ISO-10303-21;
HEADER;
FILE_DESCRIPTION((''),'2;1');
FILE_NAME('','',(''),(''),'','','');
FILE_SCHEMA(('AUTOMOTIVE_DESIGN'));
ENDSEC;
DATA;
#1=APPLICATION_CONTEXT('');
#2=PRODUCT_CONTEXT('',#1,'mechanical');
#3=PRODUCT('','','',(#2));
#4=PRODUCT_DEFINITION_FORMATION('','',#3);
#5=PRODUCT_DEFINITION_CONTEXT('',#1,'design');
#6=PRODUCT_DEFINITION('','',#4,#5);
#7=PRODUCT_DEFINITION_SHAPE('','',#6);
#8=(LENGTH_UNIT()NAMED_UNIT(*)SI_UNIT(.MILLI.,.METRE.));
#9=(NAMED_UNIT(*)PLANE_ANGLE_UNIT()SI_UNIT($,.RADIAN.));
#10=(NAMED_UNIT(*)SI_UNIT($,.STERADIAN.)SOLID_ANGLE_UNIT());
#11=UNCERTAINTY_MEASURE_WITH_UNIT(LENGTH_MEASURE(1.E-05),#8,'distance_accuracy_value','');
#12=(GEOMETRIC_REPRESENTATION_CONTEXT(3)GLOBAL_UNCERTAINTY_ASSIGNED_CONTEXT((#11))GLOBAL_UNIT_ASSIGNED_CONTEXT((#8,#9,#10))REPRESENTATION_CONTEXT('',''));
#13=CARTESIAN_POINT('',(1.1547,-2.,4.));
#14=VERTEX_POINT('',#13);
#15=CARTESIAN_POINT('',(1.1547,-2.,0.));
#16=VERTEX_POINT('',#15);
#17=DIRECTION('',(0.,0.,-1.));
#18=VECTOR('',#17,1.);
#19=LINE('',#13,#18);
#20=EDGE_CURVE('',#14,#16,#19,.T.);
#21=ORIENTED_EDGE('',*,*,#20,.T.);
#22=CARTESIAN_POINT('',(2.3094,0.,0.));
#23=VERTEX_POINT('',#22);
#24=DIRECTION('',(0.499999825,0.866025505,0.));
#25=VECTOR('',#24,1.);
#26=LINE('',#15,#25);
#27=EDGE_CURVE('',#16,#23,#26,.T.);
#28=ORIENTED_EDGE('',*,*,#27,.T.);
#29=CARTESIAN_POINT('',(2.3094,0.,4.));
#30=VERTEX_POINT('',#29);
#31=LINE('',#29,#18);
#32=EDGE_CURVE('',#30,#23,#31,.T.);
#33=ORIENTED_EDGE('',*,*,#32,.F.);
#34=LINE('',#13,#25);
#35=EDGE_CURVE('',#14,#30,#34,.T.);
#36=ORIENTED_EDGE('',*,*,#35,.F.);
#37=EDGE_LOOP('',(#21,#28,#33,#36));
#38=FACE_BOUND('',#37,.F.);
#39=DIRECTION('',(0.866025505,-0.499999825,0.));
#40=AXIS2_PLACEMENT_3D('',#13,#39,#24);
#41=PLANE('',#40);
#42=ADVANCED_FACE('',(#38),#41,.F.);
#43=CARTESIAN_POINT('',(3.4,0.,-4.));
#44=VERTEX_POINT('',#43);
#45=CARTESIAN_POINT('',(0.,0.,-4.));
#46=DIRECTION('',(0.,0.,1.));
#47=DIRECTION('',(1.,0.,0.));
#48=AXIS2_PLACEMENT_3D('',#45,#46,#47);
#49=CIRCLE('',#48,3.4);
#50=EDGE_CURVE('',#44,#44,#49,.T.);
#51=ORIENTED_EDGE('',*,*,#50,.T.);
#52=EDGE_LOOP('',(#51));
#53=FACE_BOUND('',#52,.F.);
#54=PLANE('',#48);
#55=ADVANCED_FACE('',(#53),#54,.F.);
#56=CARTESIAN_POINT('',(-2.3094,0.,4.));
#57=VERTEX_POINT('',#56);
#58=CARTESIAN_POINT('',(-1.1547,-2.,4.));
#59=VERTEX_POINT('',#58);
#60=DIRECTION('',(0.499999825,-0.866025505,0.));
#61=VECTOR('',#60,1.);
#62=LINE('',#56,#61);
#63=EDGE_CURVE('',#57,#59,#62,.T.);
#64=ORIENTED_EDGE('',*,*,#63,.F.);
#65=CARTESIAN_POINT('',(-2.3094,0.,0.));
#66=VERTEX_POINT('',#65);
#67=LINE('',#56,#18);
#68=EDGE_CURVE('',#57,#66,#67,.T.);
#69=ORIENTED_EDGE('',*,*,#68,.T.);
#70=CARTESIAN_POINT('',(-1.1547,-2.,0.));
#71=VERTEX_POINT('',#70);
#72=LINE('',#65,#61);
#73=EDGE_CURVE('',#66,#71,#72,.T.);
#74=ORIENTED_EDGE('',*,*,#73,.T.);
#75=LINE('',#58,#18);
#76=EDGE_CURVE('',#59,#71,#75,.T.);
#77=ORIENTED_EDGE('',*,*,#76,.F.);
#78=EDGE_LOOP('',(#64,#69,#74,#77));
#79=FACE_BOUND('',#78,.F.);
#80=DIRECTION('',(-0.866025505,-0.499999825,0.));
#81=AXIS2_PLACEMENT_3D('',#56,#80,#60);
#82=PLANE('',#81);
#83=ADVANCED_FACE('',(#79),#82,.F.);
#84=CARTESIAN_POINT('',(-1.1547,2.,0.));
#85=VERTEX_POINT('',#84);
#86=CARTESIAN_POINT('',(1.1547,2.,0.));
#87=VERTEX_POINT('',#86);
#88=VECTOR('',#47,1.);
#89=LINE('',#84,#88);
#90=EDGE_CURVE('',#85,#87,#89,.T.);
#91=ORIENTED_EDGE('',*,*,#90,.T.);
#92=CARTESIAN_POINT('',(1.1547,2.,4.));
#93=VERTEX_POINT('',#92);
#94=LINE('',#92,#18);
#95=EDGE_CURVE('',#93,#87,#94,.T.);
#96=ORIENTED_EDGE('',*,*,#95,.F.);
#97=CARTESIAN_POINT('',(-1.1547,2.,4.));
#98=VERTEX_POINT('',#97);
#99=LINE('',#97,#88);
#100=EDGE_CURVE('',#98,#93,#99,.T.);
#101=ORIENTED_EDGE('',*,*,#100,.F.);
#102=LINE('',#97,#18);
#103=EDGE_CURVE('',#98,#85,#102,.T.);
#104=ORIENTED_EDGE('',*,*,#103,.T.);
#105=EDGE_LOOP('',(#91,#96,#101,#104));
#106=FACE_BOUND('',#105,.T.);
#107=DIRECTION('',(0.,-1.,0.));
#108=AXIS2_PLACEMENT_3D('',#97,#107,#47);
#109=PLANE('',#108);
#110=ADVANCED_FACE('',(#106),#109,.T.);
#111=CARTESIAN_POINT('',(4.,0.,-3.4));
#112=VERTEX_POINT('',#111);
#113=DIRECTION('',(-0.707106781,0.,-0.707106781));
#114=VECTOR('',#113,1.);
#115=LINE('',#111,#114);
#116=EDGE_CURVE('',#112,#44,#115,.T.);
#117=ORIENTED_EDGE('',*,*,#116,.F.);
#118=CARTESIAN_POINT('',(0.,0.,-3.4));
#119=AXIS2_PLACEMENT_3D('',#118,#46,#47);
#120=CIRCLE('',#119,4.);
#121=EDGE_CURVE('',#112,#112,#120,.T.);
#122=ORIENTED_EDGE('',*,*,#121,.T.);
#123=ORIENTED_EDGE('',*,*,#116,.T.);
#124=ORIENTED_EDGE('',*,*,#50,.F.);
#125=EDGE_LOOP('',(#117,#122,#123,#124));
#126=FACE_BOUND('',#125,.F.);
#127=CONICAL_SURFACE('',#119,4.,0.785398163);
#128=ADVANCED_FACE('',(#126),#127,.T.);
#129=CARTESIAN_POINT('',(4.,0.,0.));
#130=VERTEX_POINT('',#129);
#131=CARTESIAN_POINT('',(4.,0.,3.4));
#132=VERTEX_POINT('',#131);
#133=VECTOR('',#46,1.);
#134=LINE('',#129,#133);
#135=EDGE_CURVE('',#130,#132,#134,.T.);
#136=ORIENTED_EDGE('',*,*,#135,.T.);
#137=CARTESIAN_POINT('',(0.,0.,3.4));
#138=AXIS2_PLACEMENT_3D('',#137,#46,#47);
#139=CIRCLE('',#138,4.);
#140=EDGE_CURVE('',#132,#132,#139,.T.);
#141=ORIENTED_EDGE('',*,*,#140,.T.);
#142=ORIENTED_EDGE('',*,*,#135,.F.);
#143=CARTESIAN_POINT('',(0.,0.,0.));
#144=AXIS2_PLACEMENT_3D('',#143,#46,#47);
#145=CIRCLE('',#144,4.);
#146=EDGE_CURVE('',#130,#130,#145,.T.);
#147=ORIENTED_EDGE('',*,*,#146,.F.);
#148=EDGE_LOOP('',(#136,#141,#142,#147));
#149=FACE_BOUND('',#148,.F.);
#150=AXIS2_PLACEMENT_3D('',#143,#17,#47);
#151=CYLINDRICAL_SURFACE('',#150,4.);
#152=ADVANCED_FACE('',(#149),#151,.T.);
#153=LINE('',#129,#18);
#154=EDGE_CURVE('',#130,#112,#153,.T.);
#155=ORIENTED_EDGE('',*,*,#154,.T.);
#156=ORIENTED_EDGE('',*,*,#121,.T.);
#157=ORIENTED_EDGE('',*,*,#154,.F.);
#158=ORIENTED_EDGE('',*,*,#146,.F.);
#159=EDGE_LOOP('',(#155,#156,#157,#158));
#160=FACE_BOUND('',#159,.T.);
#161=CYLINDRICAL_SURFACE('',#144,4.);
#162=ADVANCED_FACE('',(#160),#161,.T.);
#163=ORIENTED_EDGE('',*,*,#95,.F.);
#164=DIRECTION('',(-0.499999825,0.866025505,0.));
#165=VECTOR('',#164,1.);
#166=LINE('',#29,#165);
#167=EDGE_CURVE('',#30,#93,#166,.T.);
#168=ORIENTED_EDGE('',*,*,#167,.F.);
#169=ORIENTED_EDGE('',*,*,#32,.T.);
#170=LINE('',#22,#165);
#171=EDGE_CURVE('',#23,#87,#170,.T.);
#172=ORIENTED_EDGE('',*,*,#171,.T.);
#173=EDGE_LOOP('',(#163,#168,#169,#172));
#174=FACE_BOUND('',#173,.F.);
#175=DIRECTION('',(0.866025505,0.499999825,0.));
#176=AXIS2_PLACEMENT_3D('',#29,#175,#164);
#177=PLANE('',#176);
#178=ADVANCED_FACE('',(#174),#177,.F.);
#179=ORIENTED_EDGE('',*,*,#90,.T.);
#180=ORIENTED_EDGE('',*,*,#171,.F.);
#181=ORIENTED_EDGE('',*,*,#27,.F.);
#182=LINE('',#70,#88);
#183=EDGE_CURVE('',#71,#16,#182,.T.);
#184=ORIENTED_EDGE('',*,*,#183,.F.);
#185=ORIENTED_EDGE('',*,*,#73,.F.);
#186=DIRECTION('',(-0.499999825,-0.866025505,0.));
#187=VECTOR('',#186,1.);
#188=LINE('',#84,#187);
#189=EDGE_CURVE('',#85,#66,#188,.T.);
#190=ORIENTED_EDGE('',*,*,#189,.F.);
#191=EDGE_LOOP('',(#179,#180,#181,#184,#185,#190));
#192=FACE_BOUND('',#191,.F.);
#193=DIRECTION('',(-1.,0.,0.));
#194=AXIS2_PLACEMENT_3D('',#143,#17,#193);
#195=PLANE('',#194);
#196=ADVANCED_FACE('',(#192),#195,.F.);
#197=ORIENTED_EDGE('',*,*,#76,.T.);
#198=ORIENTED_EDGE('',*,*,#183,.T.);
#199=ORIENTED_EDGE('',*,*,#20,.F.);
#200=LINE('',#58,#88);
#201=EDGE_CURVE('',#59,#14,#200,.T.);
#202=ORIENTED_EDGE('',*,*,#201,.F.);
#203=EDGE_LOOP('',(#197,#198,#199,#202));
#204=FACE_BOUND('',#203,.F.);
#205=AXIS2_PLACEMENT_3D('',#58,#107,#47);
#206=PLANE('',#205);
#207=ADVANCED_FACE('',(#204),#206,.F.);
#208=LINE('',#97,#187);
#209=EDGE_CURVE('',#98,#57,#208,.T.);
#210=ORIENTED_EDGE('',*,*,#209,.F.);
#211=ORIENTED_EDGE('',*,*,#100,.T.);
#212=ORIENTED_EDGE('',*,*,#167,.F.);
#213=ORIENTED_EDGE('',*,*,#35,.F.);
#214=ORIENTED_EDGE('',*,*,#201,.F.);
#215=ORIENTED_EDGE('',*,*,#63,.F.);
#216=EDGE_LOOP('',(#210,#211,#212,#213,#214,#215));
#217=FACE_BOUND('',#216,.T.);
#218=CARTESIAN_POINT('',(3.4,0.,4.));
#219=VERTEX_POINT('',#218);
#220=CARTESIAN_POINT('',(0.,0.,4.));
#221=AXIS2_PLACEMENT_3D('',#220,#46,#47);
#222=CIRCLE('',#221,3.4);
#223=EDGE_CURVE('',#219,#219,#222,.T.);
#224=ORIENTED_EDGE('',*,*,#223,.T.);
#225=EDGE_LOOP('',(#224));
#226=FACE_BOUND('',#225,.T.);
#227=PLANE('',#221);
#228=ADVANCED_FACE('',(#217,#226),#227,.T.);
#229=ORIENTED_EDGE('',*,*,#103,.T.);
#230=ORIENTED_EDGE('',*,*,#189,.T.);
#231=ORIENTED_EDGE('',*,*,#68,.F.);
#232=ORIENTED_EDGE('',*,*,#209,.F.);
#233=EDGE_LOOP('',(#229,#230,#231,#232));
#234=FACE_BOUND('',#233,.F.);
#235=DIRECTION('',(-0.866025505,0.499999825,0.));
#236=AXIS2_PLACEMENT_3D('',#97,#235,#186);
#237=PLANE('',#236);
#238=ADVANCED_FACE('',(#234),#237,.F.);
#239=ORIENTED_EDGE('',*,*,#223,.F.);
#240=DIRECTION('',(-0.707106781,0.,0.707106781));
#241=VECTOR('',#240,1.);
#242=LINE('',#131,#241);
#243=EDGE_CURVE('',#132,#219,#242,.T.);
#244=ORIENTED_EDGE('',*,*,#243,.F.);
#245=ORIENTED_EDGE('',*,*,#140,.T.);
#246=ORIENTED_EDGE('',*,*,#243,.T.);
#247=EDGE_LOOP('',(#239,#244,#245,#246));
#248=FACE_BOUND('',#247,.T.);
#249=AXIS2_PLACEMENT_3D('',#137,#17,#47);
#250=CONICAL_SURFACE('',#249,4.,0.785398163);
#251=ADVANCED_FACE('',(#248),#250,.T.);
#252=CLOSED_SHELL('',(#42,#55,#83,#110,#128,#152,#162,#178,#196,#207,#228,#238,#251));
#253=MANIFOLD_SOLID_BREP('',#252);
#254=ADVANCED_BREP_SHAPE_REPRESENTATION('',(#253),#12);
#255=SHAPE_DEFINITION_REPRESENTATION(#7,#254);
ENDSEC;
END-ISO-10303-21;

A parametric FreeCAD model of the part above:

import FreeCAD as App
import Part
import Sketcher

V = App.Vector
Q = App.Units.Quantity


def edges_at(feature, points):
    """Names of the edges that pass closest to the given points."""
    edges = feature.Shape.Edges
    near = lambda p: min(range(len(edges)), key=lambda i: edges[i].distToShape(Part.Vertex(*p))[0])
    return sorted({f"Edge{near(p) + 1}" for p in points})

doc = App.newDocument("Part")
body = doc.addObject("PartDesign::Body", "Body")

# Sketch on XY plane
sketch1 = body.newObject("Sketcher::SketchObject", "Sketch")
sketch1.AttachmentSupport = (doc.getObject("XY_Plane"), [""])
sketch1.MapMode = "FlatFace"
sketch1.addGeometry(Part.Circle(V(0, 0, 0), V(0, 0, 1), 4), False)
sketch1.addConstraint(Sketcher.Constraint("Coincident", 0, 3, -1, 1))
sketch1.addConstraint(Sketcher.Constraint("Diameter", 0, 8.0))
pad1 = body.newObject("PartDesign::Pad", "Pad")
pad1.Profile = sketch1
pad1.Length = 8
pad1.Midplane = True
doc.recompute()

chamfer = body.newObject("PartDesign::Chamfer", "Chamfer")
chamfer.Base = (pad1, edges_at(pad1, [(-4, 0, -4), (-4, 0, 4)]))
chamfer.Size = 0.6

# Sketch on XY plane
sketch2 = body.newObject("Sketcher::SketchObject", "Sketch001")
sketch2.AttachmentSupport = (doc.getObject("XY_Plane"), [""])
sketch2.MapMode = "FlatFace"
sketch2.AttachmentOffset = App.Placement(V(0, 0, 4), App.Rotation())
sketch2.addGeometry(Part.LineSegment(V(1.2, 2, 0), V(-1.2, 2, 0)), False)
sketch2.addGeometry(Part.LineSegment(V(-1.2, 2, 0), V(-2.3, 0, 0)), False)
sketch2.addGeometry(Part.LineSegment(V(-2.3, 0, 0), V(-1.2, -2, 0)), False)
sketch2.addGeometry(Part.LineSegment(V(-1.2, -2, 0), V(1.2, -2, 0)), False)
sketch2.addGeometry(Part.LineSegment(V(1.2, -2, 0), V(2.3, 0, 0)), False)
sketch2.addGeometry(Part.LineSegment(V(2.3, 0, 0), V(1.2, 2, 0)), False)
sketch2.addConstraint(Sketcher.Constraint("Coincident", 0, 2, 1, 1))
sketch2.addConstraint(Sketcher.Constraint("Coincident", 1, 2, 2, 1))
sketch2.addConstraint(Sketcher.Constraint("Coincident", 2, 2, 3, 1))
sketch2.addConstraint(Sketcher.Constraint("Coincident", 3, 2, 4, 1))
sketch2.addConstraint(Sketcher.Constraint("Coincident", 4, 2, 5, 1))
sketch2.addConstraint(Sketcher.Constraint("Coincident", 5, 2, 0, 1))
sketch2.addConstraint(Sketcher.Constraint("Horizontal", 0))
sketch2.addConstraint(Sketcher.Constraint("Horizontal", 3))
sketch2.addConstraint(Sketcher.Constraint("Symmetric", 0, 2, 3, 2, -1, 1))
sketch2.addConstraint(Sketcher.Constraint("Symmetric", 1, 2, 4, 2, -1, 1))
sketch2.addConstraint(Sketcher.Constraint("PointOnObject", 1, 2, -1))
sketch2.addConstraint(Sketcher.Constraint("Parallel", 2, 5))
sketch2.addConstraint(Sketcher.Constraint("Vertical", 0, 2, 2, 2))
sketch2.addConstraint(Sketcher.Constraint("Angle", 1, Q("-120 deg")))
sketch2.addConstraint(Sketcher.Constraint("DistanceY", -1, 1, 0, 2, 2.0))
sketch2.addConstraint(Sketcher.Constraint("DistanceX", 0, 2, 0, 1, 2.3094))
pocket1 = body.newObject("PartDesign::Pocket", "Pocket")
pocket1.Profile = sketch2
pocket1.Length = 4

doc.recompute()
